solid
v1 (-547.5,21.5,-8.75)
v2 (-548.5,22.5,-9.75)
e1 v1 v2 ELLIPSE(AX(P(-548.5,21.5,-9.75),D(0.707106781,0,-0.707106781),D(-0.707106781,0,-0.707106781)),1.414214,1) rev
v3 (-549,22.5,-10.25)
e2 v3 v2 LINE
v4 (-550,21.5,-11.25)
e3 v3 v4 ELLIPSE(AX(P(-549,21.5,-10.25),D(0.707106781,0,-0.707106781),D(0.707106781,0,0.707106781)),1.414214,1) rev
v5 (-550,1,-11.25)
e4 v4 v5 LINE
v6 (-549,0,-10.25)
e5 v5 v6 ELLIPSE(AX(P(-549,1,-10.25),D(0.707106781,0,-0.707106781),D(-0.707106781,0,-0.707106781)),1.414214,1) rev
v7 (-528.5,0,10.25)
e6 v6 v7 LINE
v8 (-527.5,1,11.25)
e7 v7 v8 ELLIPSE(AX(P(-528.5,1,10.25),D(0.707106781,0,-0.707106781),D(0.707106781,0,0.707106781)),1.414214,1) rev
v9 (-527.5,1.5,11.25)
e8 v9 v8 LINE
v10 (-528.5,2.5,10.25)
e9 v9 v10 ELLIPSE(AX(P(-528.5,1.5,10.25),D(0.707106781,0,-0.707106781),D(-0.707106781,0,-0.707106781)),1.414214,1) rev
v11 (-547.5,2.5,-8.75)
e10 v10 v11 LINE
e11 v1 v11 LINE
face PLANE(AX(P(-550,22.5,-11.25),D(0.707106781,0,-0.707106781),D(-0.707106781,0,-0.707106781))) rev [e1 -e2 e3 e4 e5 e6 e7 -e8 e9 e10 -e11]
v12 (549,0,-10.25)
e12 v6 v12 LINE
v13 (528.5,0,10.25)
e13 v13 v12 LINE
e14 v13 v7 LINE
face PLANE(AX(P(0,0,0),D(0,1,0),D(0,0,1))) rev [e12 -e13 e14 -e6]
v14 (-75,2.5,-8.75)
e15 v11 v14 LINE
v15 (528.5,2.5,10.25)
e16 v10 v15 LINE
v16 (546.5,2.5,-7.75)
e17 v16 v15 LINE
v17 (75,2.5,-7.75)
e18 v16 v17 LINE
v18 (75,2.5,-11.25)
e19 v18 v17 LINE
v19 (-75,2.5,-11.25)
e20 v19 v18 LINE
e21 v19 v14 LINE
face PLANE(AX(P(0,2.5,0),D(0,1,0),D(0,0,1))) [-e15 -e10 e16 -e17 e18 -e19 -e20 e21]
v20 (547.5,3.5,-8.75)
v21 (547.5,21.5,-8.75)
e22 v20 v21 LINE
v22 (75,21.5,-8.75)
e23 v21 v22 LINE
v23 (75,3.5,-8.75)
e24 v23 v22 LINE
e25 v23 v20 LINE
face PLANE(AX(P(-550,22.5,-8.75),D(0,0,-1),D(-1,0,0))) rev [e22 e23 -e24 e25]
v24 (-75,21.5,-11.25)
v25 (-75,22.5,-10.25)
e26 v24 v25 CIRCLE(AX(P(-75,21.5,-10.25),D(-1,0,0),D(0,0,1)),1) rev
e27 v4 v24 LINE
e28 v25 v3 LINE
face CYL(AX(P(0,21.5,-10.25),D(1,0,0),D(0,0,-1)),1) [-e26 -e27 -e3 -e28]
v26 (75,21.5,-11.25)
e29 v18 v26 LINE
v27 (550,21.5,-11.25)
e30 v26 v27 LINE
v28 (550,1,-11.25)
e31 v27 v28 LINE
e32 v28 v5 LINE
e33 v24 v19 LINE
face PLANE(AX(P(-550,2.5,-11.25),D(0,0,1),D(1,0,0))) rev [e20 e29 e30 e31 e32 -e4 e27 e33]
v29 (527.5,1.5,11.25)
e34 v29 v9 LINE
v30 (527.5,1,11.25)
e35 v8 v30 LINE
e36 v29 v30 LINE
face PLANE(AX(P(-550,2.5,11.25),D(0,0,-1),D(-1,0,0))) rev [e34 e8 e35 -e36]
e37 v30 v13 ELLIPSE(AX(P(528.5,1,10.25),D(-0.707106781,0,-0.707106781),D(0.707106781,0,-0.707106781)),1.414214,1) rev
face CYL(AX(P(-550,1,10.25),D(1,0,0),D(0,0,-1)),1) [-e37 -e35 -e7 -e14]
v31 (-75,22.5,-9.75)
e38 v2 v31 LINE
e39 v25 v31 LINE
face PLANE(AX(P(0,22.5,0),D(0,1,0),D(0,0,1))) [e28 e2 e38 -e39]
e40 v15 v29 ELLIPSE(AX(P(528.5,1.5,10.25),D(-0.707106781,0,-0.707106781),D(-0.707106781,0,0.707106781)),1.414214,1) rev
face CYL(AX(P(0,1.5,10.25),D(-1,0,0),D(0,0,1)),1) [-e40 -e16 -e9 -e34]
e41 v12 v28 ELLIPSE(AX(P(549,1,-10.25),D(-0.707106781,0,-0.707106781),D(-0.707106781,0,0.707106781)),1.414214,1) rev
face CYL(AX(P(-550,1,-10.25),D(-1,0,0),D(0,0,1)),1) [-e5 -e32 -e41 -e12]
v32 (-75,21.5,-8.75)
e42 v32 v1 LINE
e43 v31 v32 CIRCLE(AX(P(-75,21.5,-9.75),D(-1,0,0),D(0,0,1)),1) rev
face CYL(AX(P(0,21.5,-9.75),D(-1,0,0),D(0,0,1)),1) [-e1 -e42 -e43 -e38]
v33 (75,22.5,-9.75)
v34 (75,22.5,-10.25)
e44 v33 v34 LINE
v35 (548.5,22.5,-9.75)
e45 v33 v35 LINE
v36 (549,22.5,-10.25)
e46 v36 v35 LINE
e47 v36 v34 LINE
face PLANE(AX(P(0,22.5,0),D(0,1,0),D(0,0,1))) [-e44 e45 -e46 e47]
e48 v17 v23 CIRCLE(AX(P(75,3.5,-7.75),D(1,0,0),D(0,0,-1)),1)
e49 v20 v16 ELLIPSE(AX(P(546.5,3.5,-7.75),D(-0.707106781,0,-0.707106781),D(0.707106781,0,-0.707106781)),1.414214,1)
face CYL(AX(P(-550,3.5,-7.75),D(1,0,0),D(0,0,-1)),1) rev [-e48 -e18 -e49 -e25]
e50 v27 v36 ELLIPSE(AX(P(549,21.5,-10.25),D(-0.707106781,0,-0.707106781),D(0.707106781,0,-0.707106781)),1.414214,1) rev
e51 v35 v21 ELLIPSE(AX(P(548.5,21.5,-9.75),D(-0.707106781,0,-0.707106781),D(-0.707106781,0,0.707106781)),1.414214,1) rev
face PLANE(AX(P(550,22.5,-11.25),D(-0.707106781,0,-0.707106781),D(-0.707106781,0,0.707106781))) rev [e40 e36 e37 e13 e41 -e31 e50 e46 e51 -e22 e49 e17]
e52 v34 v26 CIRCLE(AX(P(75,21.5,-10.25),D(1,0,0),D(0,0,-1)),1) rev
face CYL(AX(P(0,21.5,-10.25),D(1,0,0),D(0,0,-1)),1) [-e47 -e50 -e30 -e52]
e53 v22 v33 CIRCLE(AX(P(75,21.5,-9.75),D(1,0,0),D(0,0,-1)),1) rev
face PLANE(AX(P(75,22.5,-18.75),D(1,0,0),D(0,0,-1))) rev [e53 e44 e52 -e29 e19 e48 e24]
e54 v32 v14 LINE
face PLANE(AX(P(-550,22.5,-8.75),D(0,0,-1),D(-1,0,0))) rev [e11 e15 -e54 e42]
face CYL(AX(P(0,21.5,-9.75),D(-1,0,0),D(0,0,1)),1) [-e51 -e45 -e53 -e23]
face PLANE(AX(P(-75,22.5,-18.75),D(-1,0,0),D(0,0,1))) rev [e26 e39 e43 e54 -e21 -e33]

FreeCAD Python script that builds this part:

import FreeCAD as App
import Part
import Sketcher
Q = App.Units.Quantity


def edges_at(feature, points):
    """Names of the edges that pass closest to the given points."""
    edges = feature.Shape.Edges
    near = lambda p: min(range(len(edges)), key=lambda i: edges[i].distToShape(Part.Vertex(*p))[0])
    return sorted({f"Edge{near(p) + 1}" for p in points})


def add_polygon(sketch, points):
    """Adds a closed chain of lines whose ends are joined by coincident constraints."""
    first, n = sketch.GeometryCount, len(points)
    for a, b in zip(points, points[1:] + points[:1]):
        sketch.addGeometry(Part.LineSegment(App.Vector(*a, 0), App.Vector(*b, 0)), False)
    for i in range(n):
        sketch.addConstraint(Sketcher.Constraint("Coincident", first + i, 2, first + (i + 1) % n, 1))

doc = App.newDocument("Part")
body = doc.addObject("PartDesign::Body", "Body")

# Sketch on XZ plane
sketch1 = doc.addObject("Sketcher::SketchObject", "Sketch")
body.addObject(sketch1)
sketch1.AttachmentSupport = (doc.XZ_Plane, [""])
sketch1.MapMode = "FlatFace"
add_polygon(sketch1, [(-550, -11), (-550, 11), (550, 11), (550, -11)])  # lines 0-3
sketch1.addConstraint([
    Sketcher.Constraint("Vertical", 0),
    Sketcher.Constraint("Horizontal", 1),
    Sketcher.Constraint("Vertical", 2),
    Sketcher.Constraint("Horizontal", 3),
    Sketcher.Constraint("Symmetric", 0, 2, 2, 2, -1, 1),
    Sketcher.Constraint("DistanceX", 1, 1, 1, 2, Q("1100 mm")),
    Sketcher.Constraint("DistanceY", 0, 1, 0, 2, Q("22.5 mm")),
])
pad1 = doc.addObject("PartDesign::Pad", "Pad")
body.addObject(pad1)
pad1.Profile = sketch1
pad1.Length = 2.5
pad1.Reversed = True

# Sketch on XZ plane
sketch2 = doc.addObject("Sketcher::SketchObject", "Sketch001")
body.addObject(sketch2)
sketch2.AttachmentSupport = (doc.XZ_Plane, [""])
sketch2.MapMode = "FlatFace"
sketch2.AttachmentOffset = App.Placement(App.Vector(0, 0, -2.5), App.Rotation())
add_polygon(sketch2, [(-550, -11.2), (-550, -8.8), (550, -8.8), (550, -11.2)])  # lines 0-3
sketch2.addConstraint([
    Sketcher.Constraint("Vertical", 0),
    Sketcher.Constraint("Horizontal", 1),
    Sketcher.Constraint("Vertical", 2),
    Sketcher.Constraint("Horizontal", 3),
    Sketcher.Constraint("DistanceX", 1, 1, 1, 2, Q("1100 mm")),
    Sketcher.Constraint("DistanceY", 0, 1, 0, 2, Q("2.5 mm")),
    Sketcher.Constraint("DistanceX", 0, 2, -1, 1, Q("550 mm")),
    Sketcher.Constraint("DistanceY", 0, 2, -1, 1, Q("8.75 mm")),
])
pad2 = doc.addObject("PartDesign::Pad", "Pad001")
body.addObject(pad2)
pad2.Profile = sketch2
pad2.Length = 20
pad2.Reversed = True

# Sketch on XY plane
sketch3 = doc.addObject("Sketcher::SketchObject", "Sketch002")
body.addObject(sketch3)
sketch3.AttachmentSupport = (doc.XY_Plane, [""])
sketch3.MapMode = "FlatFace"
sketch3.AttachmentOffset = App.Placement(App.Vector(0, 0, -8.75), App.Rotation())
add_polygon(sketch3, [(-75, 22), (-75, 2), (75, 2), (75, 22)])  # lines 0-3
sketch3.addConstraint([
    Sketcher.Constraint("Vertical", 0),
    Sketcher.Constraint("Horizontal", 1),
    Sketcher.Constraint("Vertical", 2),
    Sketcher.Constraint("Horizontal", 3),
    Sketcher.Constraint("DistanceX", 1, 1, 1, 2, Q("150 mm")),
    Sketcher.Constraint("DistanceY", 0, 2, 0, 1, Q("20 mm")),
    Sketcher.Constraint("DistanceX", 0, 2, -1, 1, Q("75 mm")),
    Sketcher.Constraint("DistanceY", -1, 1, 0, 2, Q("2.5 mm")),
])
pocket1 = doc.addObject("PartDesign::Pocket", "Pocket")
body.addObject(pocket1)
pocket1.Profile = sketch3
pocket1.Length = 10

# Sketch on XZ plane
sketch4 = doc.addObject("Sketcher::SketchObject", "Sketch003")
body.addObject(sketch4)
sketch4.AttachmentSupport = (doc.XZ_Plane, [""])
sketch4.MapMode = "FlatFace"
add_polygon(sketch4, [(528, 11), (550, -11), (550, 11)])  # lines 0-2
add_polygon(sketch4, [(-550, 11), (-550, -11), (-528, 11)])  # lines 3-5
sketch4.addConstraint([
    Sketcher.Constraint("Vertical", 1),
    Sketcher.Constraint("Horizontal", 2),
    Sketcher.Constraint("Vertical", 3),
    Sketcher.Constraint("Horizontal", 5),
    Sketcher.Constraint("Symmetric", 1, 2, 3, 2, -1, 1),
    Sketcher.Constraint("Symmetric", 2, 2, 4, 2, -2),
    Sketcher.Constraint("Perpendicular", 0, 4),
    Sketcher.Constraint("Horizontal", 0, 2, 3, 2),
    Sketcher.Constraint("DistanceX", 2, 2, 2, 1, Q("22.5 mm")),
    Sketcher.Constraint("DistanceX", -1, 1, 0, 2, Q("550 mm")),
])
pocket2 = doc.addObject("PartDesign::Pocket", "Pocket001")
body.addObject(pocket2)
pocket2.Profile = sketch4
pocket2.Type = "ThroughAll"
doc.recompute()

fillet = doc.addObject("PartDesign::Fillet", "Fillet")
body.addObject(fillet)
fillet.Base = (pocket2, edges_at(pocket2, [
    (312.5, 22.5, -11.25),
    (311.25, 22.5, -8.75),
    (-312.5, 22.5, -11.25),
    (311.25, 2.5, -8.75),
    (0, 0, -11.25),
    (0, 0, 11.25),
    (0, 2.5, 11.25),
    (-311.25, 22.5, -8.75),
]))
fillet.Radius = 1

doc.recompute()
